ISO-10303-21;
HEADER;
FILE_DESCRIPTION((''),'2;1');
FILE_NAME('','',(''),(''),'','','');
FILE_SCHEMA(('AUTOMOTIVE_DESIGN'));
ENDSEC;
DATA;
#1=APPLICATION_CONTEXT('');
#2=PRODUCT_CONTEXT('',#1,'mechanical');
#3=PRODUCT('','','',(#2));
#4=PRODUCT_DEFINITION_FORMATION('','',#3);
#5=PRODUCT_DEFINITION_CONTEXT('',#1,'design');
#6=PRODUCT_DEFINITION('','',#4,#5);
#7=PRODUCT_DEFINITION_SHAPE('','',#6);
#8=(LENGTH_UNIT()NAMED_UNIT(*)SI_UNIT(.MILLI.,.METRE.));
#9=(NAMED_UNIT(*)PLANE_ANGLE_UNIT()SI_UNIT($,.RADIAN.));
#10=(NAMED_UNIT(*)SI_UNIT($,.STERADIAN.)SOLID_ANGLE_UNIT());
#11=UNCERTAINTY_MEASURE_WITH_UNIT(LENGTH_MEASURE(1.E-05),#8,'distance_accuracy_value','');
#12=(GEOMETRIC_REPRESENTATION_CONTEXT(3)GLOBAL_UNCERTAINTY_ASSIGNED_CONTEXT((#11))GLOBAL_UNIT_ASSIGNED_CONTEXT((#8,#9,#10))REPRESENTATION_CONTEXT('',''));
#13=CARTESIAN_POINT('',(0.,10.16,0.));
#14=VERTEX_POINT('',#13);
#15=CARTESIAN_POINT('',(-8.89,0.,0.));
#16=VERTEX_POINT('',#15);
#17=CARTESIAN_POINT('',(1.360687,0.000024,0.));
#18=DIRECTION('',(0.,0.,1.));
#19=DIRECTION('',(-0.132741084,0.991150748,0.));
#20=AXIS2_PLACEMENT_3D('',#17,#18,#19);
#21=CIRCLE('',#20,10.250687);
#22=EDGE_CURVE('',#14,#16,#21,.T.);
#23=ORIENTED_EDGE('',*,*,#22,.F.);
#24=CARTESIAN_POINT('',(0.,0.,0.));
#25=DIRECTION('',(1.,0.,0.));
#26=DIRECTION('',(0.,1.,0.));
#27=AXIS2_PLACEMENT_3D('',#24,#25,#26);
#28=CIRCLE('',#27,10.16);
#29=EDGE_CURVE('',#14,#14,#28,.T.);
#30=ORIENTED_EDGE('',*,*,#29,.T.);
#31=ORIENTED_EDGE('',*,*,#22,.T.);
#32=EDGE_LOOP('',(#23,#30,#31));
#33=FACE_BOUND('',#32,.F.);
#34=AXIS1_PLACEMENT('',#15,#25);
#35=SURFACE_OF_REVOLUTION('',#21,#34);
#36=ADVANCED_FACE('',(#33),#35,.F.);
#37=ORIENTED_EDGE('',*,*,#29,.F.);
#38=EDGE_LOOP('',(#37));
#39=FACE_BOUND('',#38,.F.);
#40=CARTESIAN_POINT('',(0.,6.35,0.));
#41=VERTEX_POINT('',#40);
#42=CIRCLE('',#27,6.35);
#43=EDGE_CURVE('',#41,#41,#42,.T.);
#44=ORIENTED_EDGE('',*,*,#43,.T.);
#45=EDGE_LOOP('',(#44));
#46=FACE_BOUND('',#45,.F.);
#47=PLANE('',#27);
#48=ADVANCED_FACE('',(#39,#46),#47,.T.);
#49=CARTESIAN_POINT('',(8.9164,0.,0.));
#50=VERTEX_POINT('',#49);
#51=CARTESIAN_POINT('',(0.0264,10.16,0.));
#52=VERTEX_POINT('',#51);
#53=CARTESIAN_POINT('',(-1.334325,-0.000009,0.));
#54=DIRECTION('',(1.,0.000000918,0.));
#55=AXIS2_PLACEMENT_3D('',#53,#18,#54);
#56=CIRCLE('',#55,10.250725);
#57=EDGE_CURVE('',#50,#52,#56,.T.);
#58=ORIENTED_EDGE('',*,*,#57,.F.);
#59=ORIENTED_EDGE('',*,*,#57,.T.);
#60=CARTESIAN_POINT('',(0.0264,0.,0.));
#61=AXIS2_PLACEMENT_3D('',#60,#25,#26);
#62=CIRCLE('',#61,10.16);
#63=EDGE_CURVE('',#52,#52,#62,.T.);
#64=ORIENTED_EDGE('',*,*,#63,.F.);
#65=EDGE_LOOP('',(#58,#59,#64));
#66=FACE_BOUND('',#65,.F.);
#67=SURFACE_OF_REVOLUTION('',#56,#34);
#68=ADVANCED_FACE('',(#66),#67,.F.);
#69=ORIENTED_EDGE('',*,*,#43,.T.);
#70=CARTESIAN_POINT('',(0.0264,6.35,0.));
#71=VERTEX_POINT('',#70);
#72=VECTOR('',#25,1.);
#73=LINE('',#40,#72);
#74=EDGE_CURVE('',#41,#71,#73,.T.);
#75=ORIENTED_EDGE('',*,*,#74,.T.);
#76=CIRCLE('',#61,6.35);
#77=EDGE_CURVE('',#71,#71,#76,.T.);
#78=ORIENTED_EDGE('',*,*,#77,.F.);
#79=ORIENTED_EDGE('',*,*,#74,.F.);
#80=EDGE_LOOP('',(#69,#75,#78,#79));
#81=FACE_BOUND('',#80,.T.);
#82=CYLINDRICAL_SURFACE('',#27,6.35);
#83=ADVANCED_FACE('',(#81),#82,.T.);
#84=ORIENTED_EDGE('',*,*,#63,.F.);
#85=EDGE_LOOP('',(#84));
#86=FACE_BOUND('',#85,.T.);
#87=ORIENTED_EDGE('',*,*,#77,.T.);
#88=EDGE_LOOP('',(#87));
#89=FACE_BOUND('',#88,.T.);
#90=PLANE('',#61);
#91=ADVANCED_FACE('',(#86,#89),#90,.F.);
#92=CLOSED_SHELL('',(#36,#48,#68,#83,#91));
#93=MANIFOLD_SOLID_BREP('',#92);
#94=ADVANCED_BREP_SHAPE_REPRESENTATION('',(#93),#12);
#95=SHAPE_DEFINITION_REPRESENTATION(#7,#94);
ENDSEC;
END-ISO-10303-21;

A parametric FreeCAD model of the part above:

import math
import FreeCAD as App
import Part
import Sketcher

V = App.Vector
Q = App.Units.Quantity

doc = App.newDocument("Part")
body = doc.addObject("PartDesign::Body", "Body")

# Sketch on XY plane
sketch1 = doc.addObject("Sketcher::SketchObject", "Sketch")
body.addObject(sketch1)
sketch1.AttachmentSupport = (doc.XY_Plane, [""])
sketch1.MapMode = "FlatFace"
sketch1.addGeometry([
    Part.LineSegment(V(0.0264, 6.35, 0), V(0, 6.35, 0)),  # 0
    Part.LineSegment(V(0, 6.35, 0), V(0, 10.16, 0)),  # 1
    Part.ArcOfCircle(Part.Circle(V(1.3607, 0, 0), V(0, 0, 1), 10.250712), math.radians(97.628071), math.radians(180)),  # 2
    Part.LineSegment(V(-8.89, 0, 0), V(8.9164, 0, 0)),  # 3
    Part.ArcOfCircle(Part.Circle(V(-1.3343, 0, 0), V(0, 0, 1), 10.2507), math.radians(0), math.radians(82.371929)),  # 4
    Part.LineSegment(V(0.0264, 10.16, 0), V(0.0264, 6.35, 0)),  # 5
], False)
sketch1.addConstraint([
    Sketcher.Constraint("Coincident", 0, 2, 1, 1),
    Sketcher.Constraint("Coincident", 1, 2, 2, 1),
    Sketcher.Constraint("Coincident", 2, 2, 3, 1),
    Sketcher.Constraint("Coincident", 3, 2, 4, 1),
    Sketcher.Constraint("Coincident", 4, 2, 5, 1),
    Sketcher.Constraint("Coincident", 5, 2, 0, 1),
    Sketcher.Constraint("Horizontal", 0),
    Sketcher.Constraint("Vertical", 1),
    Sketcher.Constraint("Horizontal", 3),
    Sketcher.Constraint("Vertical", 5),
    Sketcher.Constraint("Equal", 2, 4),
    Sketcher.Constraint("PointOnObject", 2, 3, -1),
    Sketcher.Constraint("PointOnObject", 4, 3, -1),
    Sketcher.Constraint("PointOnObject", 0, 2, -2),
    Sketcher.Constraint("PointOnObject", 2, 2, -1),
    Sketcher.Constraint("Horizontal", 1, 2, 4, 2),
    Sketcher.Constraint("DistanceX", 2, 2, -1, 1, Q("0.35 in")),
    Sketcher.Constraint("DistanceX", 0, 2, 0, 1, Q("0.0264 mm")),
    Sketcher.Constraint("DistanceY", 1, 1, 1, 2, Q("0.15 in")),
    Sketcher.Constraint("DistanceY", -1, 1, 1, 2, Q("0.4 in")),
])
revolution = doc.addObject("PartDesign::Revolution", "Revolution")
body.addObject(revolution)
revolution.Profile = sketch1
revolution.ReferenceAxis = (sketch1, ["H_Axis"])
revolution.Angle = 360

doc.recompute()
